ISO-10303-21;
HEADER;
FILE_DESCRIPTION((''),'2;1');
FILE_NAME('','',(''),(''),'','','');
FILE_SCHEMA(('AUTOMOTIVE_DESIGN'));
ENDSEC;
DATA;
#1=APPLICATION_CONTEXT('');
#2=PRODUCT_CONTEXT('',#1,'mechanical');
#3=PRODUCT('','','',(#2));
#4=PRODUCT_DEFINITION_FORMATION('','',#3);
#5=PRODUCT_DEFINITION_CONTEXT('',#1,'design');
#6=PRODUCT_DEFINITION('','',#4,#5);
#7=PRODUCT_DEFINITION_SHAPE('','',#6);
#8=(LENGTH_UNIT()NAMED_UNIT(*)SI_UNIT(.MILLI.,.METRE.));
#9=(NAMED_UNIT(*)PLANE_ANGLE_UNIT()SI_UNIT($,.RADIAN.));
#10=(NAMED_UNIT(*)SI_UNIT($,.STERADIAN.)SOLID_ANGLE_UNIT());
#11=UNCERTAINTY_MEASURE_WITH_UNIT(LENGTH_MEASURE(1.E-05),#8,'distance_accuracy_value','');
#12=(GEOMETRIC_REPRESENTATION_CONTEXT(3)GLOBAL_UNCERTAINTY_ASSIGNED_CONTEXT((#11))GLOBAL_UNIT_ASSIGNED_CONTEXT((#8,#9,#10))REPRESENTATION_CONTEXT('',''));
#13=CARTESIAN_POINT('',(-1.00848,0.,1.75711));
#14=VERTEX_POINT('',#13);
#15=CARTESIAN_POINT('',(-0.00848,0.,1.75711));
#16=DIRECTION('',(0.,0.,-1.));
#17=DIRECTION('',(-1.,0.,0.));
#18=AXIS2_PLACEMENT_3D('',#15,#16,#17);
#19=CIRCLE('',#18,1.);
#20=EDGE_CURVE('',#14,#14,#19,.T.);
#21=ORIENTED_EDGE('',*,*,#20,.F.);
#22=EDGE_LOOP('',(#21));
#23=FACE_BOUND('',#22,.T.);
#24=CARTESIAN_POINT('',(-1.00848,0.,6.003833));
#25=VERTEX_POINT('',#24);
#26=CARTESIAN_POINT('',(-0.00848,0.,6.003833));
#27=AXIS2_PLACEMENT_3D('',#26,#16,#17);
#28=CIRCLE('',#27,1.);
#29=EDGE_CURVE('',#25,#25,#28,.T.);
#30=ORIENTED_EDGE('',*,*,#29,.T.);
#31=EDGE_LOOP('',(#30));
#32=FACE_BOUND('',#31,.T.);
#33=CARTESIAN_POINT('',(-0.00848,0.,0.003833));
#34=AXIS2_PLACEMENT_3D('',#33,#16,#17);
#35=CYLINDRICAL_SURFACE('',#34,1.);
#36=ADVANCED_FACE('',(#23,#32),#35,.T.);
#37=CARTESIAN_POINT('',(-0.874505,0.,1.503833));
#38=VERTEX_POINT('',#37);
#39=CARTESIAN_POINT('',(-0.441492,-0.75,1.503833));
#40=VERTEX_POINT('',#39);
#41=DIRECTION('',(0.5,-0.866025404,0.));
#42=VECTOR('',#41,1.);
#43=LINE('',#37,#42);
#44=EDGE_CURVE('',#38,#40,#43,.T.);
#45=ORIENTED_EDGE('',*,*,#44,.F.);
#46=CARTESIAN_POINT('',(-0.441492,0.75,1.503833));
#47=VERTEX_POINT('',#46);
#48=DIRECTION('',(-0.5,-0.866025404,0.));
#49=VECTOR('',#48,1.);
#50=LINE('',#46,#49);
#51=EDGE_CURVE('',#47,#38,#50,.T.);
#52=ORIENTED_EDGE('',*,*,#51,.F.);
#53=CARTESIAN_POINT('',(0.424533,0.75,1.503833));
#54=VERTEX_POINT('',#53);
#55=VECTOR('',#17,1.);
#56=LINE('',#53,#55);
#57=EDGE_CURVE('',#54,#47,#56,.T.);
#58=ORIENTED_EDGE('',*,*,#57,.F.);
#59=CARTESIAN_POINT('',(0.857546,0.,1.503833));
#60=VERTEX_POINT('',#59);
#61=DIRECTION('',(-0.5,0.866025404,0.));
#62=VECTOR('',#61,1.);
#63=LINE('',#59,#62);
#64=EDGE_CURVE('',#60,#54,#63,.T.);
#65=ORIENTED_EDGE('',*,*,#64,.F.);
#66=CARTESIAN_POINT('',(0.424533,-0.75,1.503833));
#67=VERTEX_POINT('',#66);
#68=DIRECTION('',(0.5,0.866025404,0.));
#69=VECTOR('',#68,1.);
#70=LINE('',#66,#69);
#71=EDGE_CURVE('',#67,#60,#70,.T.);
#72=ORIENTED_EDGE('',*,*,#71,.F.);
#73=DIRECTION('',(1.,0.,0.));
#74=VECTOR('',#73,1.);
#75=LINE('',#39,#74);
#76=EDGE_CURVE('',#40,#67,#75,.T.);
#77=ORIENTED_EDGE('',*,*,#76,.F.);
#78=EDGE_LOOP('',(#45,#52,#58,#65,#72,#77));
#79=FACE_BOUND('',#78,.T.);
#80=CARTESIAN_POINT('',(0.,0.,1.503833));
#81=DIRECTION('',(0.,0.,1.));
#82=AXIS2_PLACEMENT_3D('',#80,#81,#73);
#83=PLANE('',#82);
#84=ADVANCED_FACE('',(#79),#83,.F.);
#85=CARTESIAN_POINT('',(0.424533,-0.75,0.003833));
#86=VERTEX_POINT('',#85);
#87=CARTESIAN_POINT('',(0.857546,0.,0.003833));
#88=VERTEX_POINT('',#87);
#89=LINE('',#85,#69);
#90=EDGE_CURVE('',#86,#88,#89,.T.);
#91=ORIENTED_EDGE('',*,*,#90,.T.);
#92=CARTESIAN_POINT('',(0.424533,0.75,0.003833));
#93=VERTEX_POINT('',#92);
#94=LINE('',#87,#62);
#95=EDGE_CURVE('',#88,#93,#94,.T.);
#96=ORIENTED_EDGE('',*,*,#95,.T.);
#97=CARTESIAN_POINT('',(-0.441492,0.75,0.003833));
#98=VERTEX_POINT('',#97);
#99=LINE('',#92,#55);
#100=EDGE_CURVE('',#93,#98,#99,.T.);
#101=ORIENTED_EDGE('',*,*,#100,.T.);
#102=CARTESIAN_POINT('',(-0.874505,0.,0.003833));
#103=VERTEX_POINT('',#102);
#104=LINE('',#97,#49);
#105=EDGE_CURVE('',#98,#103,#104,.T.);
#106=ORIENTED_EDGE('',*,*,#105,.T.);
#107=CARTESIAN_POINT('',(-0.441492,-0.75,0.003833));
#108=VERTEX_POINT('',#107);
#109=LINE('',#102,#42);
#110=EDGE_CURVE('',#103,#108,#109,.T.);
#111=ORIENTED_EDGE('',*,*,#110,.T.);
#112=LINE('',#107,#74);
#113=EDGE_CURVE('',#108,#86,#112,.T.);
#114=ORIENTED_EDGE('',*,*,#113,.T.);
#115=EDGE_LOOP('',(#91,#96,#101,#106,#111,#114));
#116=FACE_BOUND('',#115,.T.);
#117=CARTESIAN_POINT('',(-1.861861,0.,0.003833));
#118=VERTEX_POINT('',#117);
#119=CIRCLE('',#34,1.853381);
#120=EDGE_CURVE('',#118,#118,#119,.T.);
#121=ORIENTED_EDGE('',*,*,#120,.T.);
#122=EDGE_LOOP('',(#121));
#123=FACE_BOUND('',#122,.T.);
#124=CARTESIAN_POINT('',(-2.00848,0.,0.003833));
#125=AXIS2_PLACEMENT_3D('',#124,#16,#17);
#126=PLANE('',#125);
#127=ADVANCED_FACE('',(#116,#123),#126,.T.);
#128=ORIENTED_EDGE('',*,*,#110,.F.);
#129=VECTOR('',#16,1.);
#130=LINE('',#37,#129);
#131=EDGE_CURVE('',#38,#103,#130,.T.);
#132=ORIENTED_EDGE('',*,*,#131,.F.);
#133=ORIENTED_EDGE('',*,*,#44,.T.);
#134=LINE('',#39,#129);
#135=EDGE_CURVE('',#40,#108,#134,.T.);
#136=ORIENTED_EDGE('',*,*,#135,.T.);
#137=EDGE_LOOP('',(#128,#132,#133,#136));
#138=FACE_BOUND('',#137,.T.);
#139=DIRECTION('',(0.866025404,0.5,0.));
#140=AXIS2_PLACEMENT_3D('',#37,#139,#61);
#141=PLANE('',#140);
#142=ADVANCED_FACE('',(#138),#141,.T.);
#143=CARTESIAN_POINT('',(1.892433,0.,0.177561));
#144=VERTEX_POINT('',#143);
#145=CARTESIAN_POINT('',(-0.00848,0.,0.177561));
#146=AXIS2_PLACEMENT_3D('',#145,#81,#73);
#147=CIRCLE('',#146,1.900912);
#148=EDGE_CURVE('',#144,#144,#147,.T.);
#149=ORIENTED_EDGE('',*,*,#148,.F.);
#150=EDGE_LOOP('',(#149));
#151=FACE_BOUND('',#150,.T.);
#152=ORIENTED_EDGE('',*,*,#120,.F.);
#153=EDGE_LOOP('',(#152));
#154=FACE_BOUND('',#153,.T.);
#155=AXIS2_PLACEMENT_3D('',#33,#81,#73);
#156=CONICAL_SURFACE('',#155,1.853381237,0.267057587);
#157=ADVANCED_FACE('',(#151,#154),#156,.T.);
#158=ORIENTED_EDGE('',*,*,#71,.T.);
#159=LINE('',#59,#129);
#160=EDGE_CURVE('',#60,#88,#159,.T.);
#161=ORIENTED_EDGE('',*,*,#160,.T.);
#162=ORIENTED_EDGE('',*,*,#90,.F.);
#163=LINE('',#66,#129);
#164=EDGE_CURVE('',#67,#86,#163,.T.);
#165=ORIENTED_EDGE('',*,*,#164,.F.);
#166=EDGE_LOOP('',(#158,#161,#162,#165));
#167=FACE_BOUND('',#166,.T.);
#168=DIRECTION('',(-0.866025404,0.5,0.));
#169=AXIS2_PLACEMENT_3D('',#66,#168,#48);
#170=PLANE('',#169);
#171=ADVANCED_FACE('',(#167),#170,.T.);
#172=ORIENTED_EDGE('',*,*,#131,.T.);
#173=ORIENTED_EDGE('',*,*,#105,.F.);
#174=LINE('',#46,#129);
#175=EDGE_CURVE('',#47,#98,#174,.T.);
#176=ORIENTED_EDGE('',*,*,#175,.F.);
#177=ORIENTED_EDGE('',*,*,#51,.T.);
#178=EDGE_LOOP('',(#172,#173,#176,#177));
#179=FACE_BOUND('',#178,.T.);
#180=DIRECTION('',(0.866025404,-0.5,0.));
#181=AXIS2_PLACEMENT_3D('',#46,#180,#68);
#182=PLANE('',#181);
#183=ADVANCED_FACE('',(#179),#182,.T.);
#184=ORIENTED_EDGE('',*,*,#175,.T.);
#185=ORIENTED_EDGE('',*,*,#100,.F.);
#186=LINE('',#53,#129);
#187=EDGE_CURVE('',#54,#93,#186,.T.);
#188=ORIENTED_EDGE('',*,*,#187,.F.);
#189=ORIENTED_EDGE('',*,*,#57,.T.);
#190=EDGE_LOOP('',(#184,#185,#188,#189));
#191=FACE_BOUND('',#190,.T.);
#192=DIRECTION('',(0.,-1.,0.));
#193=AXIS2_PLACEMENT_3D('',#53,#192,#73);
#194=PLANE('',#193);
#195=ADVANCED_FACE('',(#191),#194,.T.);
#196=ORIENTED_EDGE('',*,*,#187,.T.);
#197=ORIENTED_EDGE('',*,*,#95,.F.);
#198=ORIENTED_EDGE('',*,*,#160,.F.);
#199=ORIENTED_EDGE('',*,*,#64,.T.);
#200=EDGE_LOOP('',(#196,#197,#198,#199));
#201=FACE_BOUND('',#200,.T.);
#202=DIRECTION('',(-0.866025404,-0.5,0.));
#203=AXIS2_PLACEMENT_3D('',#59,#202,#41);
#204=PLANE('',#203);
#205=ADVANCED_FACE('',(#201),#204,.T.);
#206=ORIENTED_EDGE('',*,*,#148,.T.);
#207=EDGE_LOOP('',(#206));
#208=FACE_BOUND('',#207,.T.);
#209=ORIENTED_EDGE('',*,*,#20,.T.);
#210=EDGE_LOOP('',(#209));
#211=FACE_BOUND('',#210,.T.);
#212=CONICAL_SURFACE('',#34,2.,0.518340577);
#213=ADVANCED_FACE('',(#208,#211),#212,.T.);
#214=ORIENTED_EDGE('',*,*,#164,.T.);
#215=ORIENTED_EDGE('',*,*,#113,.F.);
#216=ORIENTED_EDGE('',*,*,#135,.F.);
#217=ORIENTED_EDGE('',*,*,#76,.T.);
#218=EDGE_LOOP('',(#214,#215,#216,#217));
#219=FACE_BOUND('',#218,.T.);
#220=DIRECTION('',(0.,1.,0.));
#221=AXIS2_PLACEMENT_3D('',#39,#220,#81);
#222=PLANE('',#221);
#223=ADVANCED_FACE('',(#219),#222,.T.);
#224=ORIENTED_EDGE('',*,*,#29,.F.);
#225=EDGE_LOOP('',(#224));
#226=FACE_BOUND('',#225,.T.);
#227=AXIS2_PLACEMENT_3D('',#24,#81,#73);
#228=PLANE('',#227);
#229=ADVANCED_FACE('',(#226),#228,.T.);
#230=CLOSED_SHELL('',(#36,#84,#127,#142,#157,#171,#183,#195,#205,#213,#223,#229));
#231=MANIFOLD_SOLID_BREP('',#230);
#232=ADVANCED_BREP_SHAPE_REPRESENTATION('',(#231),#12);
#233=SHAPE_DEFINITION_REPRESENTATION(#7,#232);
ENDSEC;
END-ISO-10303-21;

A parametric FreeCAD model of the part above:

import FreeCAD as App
import Part
import Sketcher

V = App.Vector
Q = App.Units.Quantity


def edges_at(feature, points):
    """Names of the edges that pass closest to the given points."""
    edges = feature.Shape.Edges
    near = lambda p: min(range(len(edges)), key=lambda i: edges[i].distToShape(Part.Vertex(*p))[0])
    return sorted({f"Edge{near(p) + 1}" for p in points})


def add_polygon(sketch, points):
    """Adds a closed chain of lines whose ends are joined by coincident constraints."""
    first, n = sketch.GeometryCount, len(points)
    for a, b in zip(points, points[1:] + points[:1]):
        sketch.addGeometry(Part.LineSegment(App.Vector(*a, 0), App.Vector(*b, 0)), False)
    for i in range(n):
        sketch.addConstraint(Sketcher.Constraint("Coincident", first + i, 2, first + (i + 1) % n, 1))

doc = App.newDocument("Part")
body = doc.addObject("PartDesign::Body", "Body")

# Sketch on XZ plane
sketch1 = body.newObject("Sketcher::SketchObject", "Sketch")
sketch1.AttachmentSupport = (doc.getObject("XZ_Plane"), [""])
sketch1.MapMode = "FlatFace"
add_polygon(sketch1, [(-0.00848, 0.003833), (-2.00848, 0.003833), (-1.00848, 1.75711), (-1.00848, 6.003833), (-0.00848, 6.003833)])  # lines 0-4
sketch1.addGeometry(Part.LineSegment(V(-0.00848, 0.003833, 0), V(-0.00848, 6.003833, 0)), True)  # axis
sketch1.addConstraint(Sketcher.Constraint("Horizontal", 0))
sketch1.addConstraint(Sketcher.Constraint("Vertical", 2))
sketch1.addConstraint(Sketcher.Constraint("Horizontal", 3))
sketch1.addConstraint(Sketcher.Constraint("Vertical", 4))
sketch1.addConstraint(Sketcher.Constraint("Vertical", 5))
sketch1.addConstraint(Sketcher.Constraint("Coincident", 5, 1, 4, 2))
sketch1.addConstraint(Sketcher.Constraint("Horizontal", 2, 2, 5, 2))
sketch1.addConstraint(Sketcher.Constraint("DistanceX", 0, 2, 0, 1, 2.0))
sketch1.addConstraint(Sketcher.Constraint("DistanceX", 3, 1, 3, 2, 1.0))
sketch1.addConstraint(Sketcher.Constraint("DistanceY", 4, 2, 4, 1, 6.0))
sketch1.addConstraint(Sketcher.Constraint("Distance", 1, 2.01841))
sketch1.addConstraint(Sketcher.Constraint("DistanceX", 0, 2, -1, 1, 2.00848))
sketch1.addConstraint(Sketcher.Constraint("DistanceY", -1, 1, 1, 2, 1.75711))
revolution = body.newObject("PartDesign::Revolution", "Revolution")
revolution.Profile = sketch1
revolution.ReferenceAxis = (sketch1, ["Axis0"])
revolution.Angle = 360

# Sketch on XY plane
sketch2 = body.newObject("Sketcher::SketchObject", "Sketch001")
sketch2.AttachmentSupport = (doc.getObject("XY_Plane"), [""])
sketch2.MapMode = "FlatFace"
sketch2.AttachmentOffset = App.Placement(V(0, 0, 0.003833), App.Rotation())
add_polygon(sketch2, [(0.857546, 0), (0.424533, 0.75), (-0.441492, 0.75), (-0.874505, 0), (-0.441492, -0.75), (0.424533, -0.75)])  # lines 0-5
sketch2.addConstraint(Sketcher.Constraint("Horizontal", 1))
sketch2.addConstraint(Sketcher.Constraint("Horizontal", 4))
sketch2.addConstraint(Sketcher.Constraint("Symmetric", 1, 2, 3, 2, -1))
sketch2.addConstraint(Sketcher.Constraint("PointOnObject", 2, 2, -1))
sketch2.addConstraint(Sketcher.Constraint("PointOnObject", 5, 2, -1))
sketch2.addConstraint(Sketcher.Constraint("Parallel", 0, 3))
sketch2.addConstraint(Sketcher.Constraint("Parallel", 2, 5))
sketch2.addConstraint(Sketcher.Constraint("Angle", 0, Q("120 deg")))
sketch2.addConstraint(Sketcher.Constraint("DistanceY", 3, 2, 1, 2, 1.5))
sketch2.addConstraint(Sketcher.Constraint("DistanceX", 1, 2, 1, 1, 0.866025))
sketch2.addConstraint(Sketcher.Constraint("DistanceX", -1, 1, 0, 2, 0.424533))
pocket1 = body.newObject("PartDesign::Pocket", "Pocket")
pocket1.Profile = sketch2
pocket1.Length = 1.5
pocket1.Reversed = True
doc.recompute()

chamfer = body.newObject("PartDesign::Chamfer", "Chamfer")
chamfer.Base = (pocket1, edges_at(pocket1, [(1.992, 0, 0.004)]))
chamfer.ChamferType = "Two distances"
chamfer.Size = 0.2
chamfer.Size2 = 0.146619
chamfer.FlipDirection = True

doc.recompute()
